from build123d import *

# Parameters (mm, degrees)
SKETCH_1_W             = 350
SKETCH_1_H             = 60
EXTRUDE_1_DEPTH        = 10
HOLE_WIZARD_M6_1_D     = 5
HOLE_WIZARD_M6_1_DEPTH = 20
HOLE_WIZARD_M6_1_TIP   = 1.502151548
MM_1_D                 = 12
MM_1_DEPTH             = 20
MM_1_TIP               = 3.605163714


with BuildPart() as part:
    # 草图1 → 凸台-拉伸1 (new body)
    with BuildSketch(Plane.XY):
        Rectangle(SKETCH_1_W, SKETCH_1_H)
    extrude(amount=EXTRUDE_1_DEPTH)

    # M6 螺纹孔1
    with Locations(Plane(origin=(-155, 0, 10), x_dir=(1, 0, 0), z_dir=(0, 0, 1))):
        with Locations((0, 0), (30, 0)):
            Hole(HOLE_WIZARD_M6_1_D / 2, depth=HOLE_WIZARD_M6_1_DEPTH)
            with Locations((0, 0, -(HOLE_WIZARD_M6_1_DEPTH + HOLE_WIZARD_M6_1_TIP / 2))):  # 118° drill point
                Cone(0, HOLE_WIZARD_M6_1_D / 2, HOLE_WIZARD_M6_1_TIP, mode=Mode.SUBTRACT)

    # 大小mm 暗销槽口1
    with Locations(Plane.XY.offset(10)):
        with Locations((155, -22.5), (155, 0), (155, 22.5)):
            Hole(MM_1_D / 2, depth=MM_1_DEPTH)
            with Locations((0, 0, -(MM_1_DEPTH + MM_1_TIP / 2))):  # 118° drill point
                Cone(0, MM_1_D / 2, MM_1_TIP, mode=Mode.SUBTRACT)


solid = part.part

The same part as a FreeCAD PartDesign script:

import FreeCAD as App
import Part
import Sketcher

V = App.Vector

doc = App.newDocument("Part")
body = doc.addObject("PartDesign::Body", "Body")

# Sketch on XY plane
sketch1 = body.newObject("Sketcher::SketchObject", "Sketch")
sketch1.AttachmentSupport = (doc.getObject("XY_Plane"), [""])
sketch1.MapMode = "FlatFace"
sketch1.addGeometry([
    Part.LineSegment(V(-175, 30, 0), V(-175, -30, 0)),
    Part.LineSegment(V(-175, -30, 0), V(175, -30, 0)),
    Part.LineSegment(V(175, -30, 0), V(175, 30, 0)),
    Part.LineSegment(V(175, 30, 0), V(-175, 30, 0)),
], False)
sketch1.addConstraint([
    Sketcher.Constraint("Coincident", 0, 2, 1, 1),
    Sketcher.Constraint("Coincident", 1, 2, 2, 1),
    Sketcher.Constraint("Coincident", 2, 2, 3, 1),
    Sketcher.Constraint("Coincident", 3, 2, 0, 1),
    Sketcher.Constraint("Vertical", 0),
    Sketcher.Constraint("Horizontal", 1),
    Sketcher.Constraint("Vertical", 2),
    Sketcher.Constraint("Horizontal", 3),
    Sketcher.Constraint("Symmetric", 0, 2, 2, 2, -1, 1),
    Sketcher.Constraint("DistanceX", 1, 1, 1, 2, 350.0),
    Sketcher.Constraint("DistanceY", 0, 2, 0, 1, 60.0),
])
pad1 = body.newObject("PartDesign::Pad", "Pad")
pad1.Profile = sketch1
pad1.Length = 10

# Sketch on XY plane
sketch2 = body.newObject("Sketcher::SketchObject", "Sketch001")
sketch2.AttachmentSupport = (doc.getObject("XY_Plane"), [""])
sketch2.MapMode = "FlatFace"
sketch2.AttachmentOffset = App.Placement(V(0, 0, 10), App.Rotation())
sketch2.addGeometry([
    Part.Circle(V(-155, 0, 0), V(0, 0, 1), 2.5),
    Part.Circle(V(-125, 0, 0), V(0, 0, 1), 2.5),
], False)
sketch2.addConstraint([
    Sketcher.Constraint("Equal", 0, 1),
    Sketcher.Constraint("PointOnObject", 0, 3, -1),
    Sketcher.Constraint("PointOnObject", 1, 3, -1),
    Sketcher.Constraint("Diameter", 0, 5.0),
    Sketcher.Constraint("DistanceX", 0, 3, -1, 1, 155.0),
    Sketcher.Constraint("DistanceX", 1, 3, -1, 1, 125.0),
])
doc.recompute()
hole = body.newObject("PartDesign::Hole", "Hole")
hole.Profile = sketch2
hole.ThreadType = "None"
hole.Diameter = 5
hole.DepthType = "Dimension"
hole.Depth = 20
hole.DrillPoint = "Angled"
hole.DrillPointAngle = 118

# Sketch on XY plane
sketch3 = body.newObject("Sketcher::SketchObject", "Sketch002")
sketch3.AttachmentSupport = (doc.getObject("XY_Plane"), [""])
sketch3.MapMode = "FlatFace"
sketch3.AttachmentOffset = App.Placement(V(0, 0, 10), App.Rotation())
sketch3.addGeometry([
    Part.Circle(V(155, -22, 0), V(0, 0, 1), 6),
    Part.Circle(V(155, 0, 0), V(0, 0, 1), 6),
    Part.Circle(V(155, 22, 0), V(0, 0, 1), 6),
], False)
sketch3.addConstraint([
    Sketcher.Constraint("Equal", 0, 1),
    Sketcher.Constraint("Equal", 1, 2),
    Sketcher.Constraint("Symmetric", 0, 3, 2, 3, -1),
    Sketcher.Constraint("PointOnObject", 1, 3, -1),
    Sketcher.Constraint("Vertical", 0, 3, 1, 3),
    Sketcher.Constraint("Diameter", 0, 12.0),
    Sketcher.Constraint("DistanceX", -1, 1, 0, 3, 155.0),
    Sketcher.Constraint("DistanceY", 0, 3, 2, 3, 45.0),
])
doc.recompute()
hole2 = body.newObject("PartDesign::Hole", "Hole001")
hole2.Profile = sketch3
hole2.ThreadType = "None"
hole2.Diameter = 12
hole2.DepthType = "Dimension"
hole2.Depth = 20
hole2.DrillPoint = "Angled"
hole2.DrillPointAngle = 118

doc.recompute()
